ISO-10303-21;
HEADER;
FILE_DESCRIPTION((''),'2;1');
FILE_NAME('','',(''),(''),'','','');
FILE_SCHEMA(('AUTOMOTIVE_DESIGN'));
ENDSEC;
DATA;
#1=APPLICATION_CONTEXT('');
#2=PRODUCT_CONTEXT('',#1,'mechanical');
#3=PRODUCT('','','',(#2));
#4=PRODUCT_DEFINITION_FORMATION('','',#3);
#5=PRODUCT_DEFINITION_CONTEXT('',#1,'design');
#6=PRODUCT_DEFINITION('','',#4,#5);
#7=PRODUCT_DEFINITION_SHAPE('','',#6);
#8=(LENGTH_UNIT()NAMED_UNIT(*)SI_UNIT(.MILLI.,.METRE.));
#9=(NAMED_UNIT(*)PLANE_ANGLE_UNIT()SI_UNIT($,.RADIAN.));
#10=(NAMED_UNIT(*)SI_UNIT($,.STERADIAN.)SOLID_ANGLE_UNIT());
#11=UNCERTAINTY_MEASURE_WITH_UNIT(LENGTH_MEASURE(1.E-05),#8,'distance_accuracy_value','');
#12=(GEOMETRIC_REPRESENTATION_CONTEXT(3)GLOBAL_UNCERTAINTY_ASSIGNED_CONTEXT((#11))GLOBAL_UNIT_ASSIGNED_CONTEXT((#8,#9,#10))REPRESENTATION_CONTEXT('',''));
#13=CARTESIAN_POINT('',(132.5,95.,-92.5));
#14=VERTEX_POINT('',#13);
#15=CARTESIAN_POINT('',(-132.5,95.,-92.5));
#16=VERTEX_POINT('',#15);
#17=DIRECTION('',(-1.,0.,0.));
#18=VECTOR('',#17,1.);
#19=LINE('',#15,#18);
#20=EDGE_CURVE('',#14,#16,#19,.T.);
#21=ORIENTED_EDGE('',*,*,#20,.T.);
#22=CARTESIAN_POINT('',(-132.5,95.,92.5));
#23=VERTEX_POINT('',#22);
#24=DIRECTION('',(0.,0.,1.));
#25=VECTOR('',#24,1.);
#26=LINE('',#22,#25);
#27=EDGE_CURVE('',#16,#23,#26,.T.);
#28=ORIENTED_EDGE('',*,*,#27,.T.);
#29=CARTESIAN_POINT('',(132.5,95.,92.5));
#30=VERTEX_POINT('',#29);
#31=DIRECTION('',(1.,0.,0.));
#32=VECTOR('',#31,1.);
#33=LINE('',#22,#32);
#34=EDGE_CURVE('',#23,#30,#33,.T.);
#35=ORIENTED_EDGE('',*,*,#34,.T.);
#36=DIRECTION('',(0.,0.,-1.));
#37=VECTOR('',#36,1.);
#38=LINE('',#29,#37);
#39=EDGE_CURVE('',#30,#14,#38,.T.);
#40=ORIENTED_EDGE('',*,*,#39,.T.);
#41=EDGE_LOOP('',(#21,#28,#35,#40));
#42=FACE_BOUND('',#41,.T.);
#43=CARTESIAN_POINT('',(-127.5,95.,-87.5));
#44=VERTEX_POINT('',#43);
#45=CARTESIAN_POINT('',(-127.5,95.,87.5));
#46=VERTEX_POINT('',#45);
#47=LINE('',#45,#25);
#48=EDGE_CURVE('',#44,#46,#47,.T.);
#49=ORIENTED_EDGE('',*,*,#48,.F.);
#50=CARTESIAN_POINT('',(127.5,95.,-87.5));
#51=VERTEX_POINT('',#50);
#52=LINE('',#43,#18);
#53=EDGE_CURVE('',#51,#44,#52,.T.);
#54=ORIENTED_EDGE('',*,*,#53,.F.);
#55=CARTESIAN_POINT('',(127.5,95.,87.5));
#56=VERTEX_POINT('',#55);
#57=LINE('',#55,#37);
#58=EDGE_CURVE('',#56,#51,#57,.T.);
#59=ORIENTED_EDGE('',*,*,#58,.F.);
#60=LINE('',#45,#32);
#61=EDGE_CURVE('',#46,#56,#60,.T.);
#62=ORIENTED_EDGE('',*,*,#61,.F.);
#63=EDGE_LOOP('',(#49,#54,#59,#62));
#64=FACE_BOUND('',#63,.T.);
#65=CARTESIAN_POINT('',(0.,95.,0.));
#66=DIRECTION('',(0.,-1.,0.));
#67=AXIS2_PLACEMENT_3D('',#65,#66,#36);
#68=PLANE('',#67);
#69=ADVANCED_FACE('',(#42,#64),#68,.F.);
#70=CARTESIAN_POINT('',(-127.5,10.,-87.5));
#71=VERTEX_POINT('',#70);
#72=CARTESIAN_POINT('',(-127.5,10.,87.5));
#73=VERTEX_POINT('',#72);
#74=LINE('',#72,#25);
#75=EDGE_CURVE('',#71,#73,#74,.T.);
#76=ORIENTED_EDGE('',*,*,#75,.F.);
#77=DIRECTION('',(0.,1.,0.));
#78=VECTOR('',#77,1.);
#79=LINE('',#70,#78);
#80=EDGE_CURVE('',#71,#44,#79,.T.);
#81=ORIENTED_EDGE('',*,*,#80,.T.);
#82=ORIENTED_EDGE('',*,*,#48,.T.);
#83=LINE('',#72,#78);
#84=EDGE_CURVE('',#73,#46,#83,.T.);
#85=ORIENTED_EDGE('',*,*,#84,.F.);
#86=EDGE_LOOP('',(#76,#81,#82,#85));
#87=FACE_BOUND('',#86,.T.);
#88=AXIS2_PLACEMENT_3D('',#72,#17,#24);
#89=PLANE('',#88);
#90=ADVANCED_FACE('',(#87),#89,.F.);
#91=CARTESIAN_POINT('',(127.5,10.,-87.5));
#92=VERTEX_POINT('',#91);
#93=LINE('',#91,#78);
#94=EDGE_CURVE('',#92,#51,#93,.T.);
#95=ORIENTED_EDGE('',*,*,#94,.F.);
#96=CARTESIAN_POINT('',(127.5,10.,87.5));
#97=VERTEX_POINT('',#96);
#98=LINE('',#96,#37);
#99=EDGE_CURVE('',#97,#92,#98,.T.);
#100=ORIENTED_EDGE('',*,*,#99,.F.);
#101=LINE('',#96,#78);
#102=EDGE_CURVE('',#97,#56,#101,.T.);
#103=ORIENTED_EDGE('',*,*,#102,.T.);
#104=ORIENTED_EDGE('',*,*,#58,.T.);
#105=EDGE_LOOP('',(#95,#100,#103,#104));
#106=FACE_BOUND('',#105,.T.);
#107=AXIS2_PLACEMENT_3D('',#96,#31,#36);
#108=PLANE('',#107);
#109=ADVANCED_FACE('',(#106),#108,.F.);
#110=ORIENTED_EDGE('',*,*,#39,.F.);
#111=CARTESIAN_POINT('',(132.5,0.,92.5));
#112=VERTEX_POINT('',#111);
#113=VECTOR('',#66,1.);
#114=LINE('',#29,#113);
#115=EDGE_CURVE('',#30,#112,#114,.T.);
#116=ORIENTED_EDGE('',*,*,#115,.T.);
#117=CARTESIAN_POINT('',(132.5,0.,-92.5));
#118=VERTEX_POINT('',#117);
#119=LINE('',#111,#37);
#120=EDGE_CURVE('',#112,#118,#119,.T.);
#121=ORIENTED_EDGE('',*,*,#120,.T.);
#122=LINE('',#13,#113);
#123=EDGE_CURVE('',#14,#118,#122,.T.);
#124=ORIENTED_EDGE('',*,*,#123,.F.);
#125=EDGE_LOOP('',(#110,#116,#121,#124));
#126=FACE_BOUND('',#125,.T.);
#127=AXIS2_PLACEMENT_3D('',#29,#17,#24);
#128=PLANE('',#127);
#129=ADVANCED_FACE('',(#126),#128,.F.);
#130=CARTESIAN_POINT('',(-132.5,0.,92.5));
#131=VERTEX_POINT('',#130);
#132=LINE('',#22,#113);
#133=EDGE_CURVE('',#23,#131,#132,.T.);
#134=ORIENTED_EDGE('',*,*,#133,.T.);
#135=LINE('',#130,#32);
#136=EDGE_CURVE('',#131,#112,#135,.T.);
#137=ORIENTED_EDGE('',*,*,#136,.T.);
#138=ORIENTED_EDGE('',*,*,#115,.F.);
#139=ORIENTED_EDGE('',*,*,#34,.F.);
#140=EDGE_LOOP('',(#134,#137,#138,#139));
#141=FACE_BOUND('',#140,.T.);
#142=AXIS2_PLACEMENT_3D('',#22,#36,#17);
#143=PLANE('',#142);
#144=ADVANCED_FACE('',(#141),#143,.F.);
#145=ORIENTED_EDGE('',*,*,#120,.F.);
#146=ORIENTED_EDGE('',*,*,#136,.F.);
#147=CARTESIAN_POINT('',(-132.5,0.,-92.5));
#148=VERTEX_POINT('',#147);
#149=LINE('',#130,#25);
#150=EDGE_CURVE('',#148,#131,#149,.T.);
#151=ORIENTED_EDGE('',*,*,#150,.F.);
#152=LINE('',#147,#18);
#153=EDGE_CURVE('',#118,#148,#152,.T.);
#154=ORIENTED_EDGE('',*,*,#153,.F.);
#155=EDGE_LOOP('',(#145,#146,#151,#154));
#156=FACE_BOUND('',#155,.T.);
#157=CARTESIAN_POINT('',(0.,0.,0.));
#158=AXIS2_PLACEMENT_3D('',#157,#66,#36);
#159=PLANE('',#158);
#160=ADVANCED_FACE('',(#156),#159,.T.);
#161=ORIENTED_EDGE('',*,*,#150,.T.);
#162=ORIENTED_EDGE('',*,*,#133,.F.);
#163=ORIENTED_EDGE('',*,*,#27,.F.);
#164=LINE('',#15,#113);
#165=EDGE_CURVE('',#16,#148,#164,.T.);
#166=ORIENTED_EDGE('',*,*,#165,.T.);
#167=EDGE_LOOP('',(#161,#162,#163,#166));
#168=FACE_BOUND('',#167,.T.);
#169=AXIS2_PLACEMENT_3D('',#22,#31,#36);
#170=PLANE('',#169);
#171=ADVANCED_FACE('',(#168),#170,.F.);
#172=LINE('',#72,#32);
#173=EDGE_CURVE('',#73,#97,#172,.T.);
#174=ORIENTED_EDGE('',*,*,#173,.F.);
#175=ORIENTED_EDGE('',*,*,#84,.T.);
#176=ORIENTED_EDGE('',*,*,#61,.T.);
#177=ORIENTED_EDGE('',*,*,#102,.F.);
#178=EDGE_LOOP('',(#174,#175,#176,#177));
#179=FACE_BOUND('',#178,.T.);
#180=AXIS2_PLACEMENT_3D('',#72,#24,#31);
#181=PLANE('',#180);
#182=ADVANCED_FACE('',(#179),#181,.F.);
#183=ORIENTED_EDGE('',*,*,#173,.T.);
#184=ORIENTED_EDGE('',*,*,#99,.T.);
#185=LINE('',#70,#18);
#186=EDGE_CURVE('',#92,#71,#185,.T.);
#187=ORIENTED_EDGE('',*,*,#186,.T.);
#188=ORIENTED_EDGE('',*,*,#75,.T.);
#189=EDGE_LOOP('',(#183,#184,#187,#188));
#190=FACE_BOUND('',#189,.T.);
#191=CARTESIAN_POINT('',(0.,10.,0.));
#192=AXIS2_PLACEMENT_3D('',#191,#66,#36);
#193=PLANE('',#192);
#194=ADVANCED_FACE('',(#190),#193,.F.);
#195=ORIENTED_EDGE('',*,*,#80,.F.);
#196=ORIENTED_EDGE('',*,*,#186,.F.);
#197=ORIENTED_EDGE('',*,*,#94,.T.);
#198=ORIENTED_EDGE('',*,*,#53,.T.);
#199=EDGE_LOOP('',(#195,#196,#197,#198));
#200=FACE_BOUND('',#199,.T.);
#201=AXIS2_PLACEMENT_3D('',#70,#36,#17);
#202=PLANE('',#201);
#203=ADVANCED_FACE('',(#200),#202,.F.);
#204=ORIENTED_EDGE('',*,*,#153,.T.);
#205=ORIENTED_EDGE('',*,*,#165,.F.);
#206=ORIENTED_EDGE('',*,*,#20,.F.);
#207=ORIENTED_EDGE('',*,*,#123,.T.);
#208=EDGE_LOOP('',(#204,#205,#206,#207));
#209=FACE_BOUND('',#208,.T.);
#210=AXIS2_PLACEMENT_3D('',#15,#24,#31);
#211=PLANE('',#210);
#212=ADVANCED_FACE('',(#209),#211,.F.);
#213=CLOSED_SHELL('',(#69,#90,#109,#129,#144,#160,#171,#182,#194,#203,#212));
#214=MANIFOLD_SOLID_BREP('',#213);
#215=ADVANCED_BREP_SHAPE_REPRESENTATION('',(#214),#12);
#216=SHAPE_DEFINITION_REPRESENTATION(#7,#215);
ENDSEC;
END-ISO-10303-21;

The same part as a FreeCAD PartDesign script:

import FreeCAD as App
import Part
import Sketcher
from FreeCAD import Vector
Q = App.Units.Quantity


def add_polygon(sketch, points):
    """Adds a closed chain of lines whose ends are joined by coincident constraints."""
    first, n = sketch.GeometryCount, len(points)
    for a, b in zip(points, points[1:] + points[:1]):
        sketch.addGeometry(Part.LineSegment(App.Vector(*a, 0), App.Vector(*b, 0)), False)
    for i in range(n):
        sketch.addConstraint(Sketcher.Constraint("Coincident", first + i, 2, first + (i + 1) % n, 1))

doc = App.newDocument("Part")
body = doc.addObject("PartDesign::Body", "Body")

sketch1 = doc.addObject("Sketcher::SketchObject", "Sketch")
body.addObject(sketch1)
sketch1.AttachmentSupport = (doc.XZ_Plane, [""])
sketch1.MapMode = "FlatFace"
add_polygon(sketch1, [(-132, -92), (-132, 92), (132, 92), (132, -92)])
sketch1.addConstraint(Sketcher.Constraint("Vertical", 0))
sketch1.addConstraint(Sketcher.Constraint("Horizontal", 1))
sketch1.addConstraint(Sketcher.Constraint("Vertical", 2))
sketch1.addConstraint(Sketcher.Constraint("Horizontal", 3))
sketch1.addConstraint(Sketcher.Constraint("Symmetric", 0, 2, 2, 2, -1, 1))
sketch1.addConstraint(Sketcher.Constraint("DistanceX", 1, 1, 1, 2, Q("265 mm")))
sketch1.addConstraint(Sketcher.Constraint("DistanceY", 0, 1, 0, 2, Q("185 mm")))
pad1 = doc.addObject("PartDesign::Pad", "Pad")
body.addObject(pad1)
pad1.Profile = sketch1
pad1.Length = 95
pad1.Reversed = True

sketch2 = doc.addObject("Sketcher::SketchObject", "Sketch001")
body.addObject(sketch2)
sketch2.AttachmentSupport = (doc.XZ_Plane, [""])
sketch2.MapMode = "FlatFace"
sketch2.AttachmentOffset = App.Placement(Vector(0, 0, -95), App.Rotation())
add_polygon(sketch2, [(-128, -88), (-128, 88), (128, 88), (128, -88)])
sketch2.addConstraint(Sketcher.Constraint("Vertical", 0))
sketch2.addConstraint(Sketcher.Constraint("Horizontal", 1))
sketch2.addConstraint(Sketcher.Constraint("Vertical", 2))
sketch2.addConstraint(Sketcher.Constraint("Horizontal", 3))
sketch2.addConstraint(Sketcher.Constraint("Symmetric", 0, 2, 2, 2, -1, 1))
sketch2.addConstraint(Sketcher.Constraint("DistanceX", 1, 1, 1, 2, Q("255 mm")))
sketch2.addConstraint(Sketcher.Constraint("DistanceY", 0, 1, 0, 2, Q("175 mm")))
pocket1 = doc.addObject("PartDesign::Pocket", "Pocket")
body.addObject(pocket1)
pocket1.Profile = sketch2
pocket1.Length = 85
pocket1.Reversed = True

doc.recompute()
